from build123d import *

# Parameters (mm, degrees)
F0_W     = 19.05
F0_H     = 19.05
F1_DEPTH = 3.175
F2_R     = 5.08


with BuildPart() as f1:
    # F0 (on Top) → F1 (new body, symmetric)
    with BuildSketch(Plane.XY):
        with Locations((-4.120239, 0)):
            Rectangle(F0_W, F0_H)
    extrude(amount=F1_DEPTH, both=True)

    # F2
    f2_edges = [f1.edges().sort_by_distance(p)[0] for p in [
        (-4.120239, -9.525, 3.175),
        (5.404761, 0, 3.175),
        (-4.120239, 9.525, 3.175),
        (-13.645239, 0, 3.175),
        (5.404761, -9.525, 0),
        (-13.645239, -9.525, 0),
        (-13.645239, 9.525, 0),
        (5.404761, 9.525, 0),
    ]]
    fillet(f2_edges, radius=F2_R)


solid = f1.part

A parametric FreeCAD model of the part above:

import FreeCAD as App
import Part
import Sketcher
from FreeCAD import Vector
Q = App.Units.Quantity


def edges_at(feature, points):
    """Names of the edges that pass closest to the given points."""
    edges = feature.Shape.Edges
    near = lambda p: min(range(len(edges)), key=lambda i: edges[i].distToShape(Part.Vertex(*p))[0])
    return sorted({f"Edge{near(p) + 1}" for p in points})

doc = App.newDocument("Part")
body = doc.addObject("PartDesign::Body", "Body")

# Sketch on XY plane
sketch1 = body.newObject("Sketcher::SketchObject", "Sketch")
sketch1.AttachmentSupport = (doc.getObject("XY_Plane"), [""])
sketch1.MapMode = "FlatFace"
sketch1.addGeometry(Part.LineSegment(Vector(-14, 10, 0), Vector(-14, -10, 0)), False)
sketch1.addGeometry(Part.LineSegment(Vector(-14, -10, 0), Vector(5, -10, 0)), False)
sketch1.addGeometry(Part.LineSegment(Vector(5, -10, 0), Vector(5, 10, 0)), False)
sketch1.addGeometry(Part.LineSegment(Vector(5, 10, 0), Vector(-14, 10, 0)), False)
sketch1.addConstraint(Sketcher.Constraint("Coincident", 0, 2, 1, 1))
sketch1.addConstraint(Sketcher.Constraint("Coincident", 1, 2, 2, 1))
sketch1.addConstraint(Sketcher.Constraint("Coincident", 2, 2, 3, 1))
sketch1.addConstraint(Sketcher.Constraint("Coincident", 3, 2, 0, 1))
sketch1.addConstraint(Sketcher.Constraint("Vertical", 0))
sketch1.addConstraint(Sketcher.Constraint("Horizontal", 1))
sketch1.addConstraint(Sketcher.Constraint("Vertical", 2))
sketch1.addConstraint(Sketcher.Constraint("Horizontal", 3))
sketch1.addConstraint(Sketcher.Constraint("Equal", 3, 0))
sketch1.addConstraint(Sketcher.Constraint("DistanceX", 1, 1, 1, 2, Q("0.75 in")))
sketch1.addConstraint(Sketcher.Constraint("DistanceY", 0, 2, -1, 1, Q("0.375 in")))
sketch1.addConstraint(Sketcher.Constraint("DistanceX", 0, 2, -1, 1, 13.645239))
pad1 = body.newObject("PartDesign::Pad", "Pad")
pad1.Profile = sketch1
pad1.Length = Q("0.25 in")
pad1.Midplane = True
doc.recompute()

fillet = body.newObject("PartDesign::Fillet", "Fillet")
fillet.Base = (pad1, edges_at(pad1, [
    (-4.12, -9.525, 3.175),
    (5.405, 0, 3.175),
    (-4.12, 9.525, 3.175),
    (-13.645, 0, 3.175),
    (5.405, -9.525, 0),
    (-13.645, -9.525, 0),
    (-13.645, 9.525, 0),
    (5.405, 9.525, 0),
]))
fillet.Radius = Q("0.2 in")

doc.recompute()
